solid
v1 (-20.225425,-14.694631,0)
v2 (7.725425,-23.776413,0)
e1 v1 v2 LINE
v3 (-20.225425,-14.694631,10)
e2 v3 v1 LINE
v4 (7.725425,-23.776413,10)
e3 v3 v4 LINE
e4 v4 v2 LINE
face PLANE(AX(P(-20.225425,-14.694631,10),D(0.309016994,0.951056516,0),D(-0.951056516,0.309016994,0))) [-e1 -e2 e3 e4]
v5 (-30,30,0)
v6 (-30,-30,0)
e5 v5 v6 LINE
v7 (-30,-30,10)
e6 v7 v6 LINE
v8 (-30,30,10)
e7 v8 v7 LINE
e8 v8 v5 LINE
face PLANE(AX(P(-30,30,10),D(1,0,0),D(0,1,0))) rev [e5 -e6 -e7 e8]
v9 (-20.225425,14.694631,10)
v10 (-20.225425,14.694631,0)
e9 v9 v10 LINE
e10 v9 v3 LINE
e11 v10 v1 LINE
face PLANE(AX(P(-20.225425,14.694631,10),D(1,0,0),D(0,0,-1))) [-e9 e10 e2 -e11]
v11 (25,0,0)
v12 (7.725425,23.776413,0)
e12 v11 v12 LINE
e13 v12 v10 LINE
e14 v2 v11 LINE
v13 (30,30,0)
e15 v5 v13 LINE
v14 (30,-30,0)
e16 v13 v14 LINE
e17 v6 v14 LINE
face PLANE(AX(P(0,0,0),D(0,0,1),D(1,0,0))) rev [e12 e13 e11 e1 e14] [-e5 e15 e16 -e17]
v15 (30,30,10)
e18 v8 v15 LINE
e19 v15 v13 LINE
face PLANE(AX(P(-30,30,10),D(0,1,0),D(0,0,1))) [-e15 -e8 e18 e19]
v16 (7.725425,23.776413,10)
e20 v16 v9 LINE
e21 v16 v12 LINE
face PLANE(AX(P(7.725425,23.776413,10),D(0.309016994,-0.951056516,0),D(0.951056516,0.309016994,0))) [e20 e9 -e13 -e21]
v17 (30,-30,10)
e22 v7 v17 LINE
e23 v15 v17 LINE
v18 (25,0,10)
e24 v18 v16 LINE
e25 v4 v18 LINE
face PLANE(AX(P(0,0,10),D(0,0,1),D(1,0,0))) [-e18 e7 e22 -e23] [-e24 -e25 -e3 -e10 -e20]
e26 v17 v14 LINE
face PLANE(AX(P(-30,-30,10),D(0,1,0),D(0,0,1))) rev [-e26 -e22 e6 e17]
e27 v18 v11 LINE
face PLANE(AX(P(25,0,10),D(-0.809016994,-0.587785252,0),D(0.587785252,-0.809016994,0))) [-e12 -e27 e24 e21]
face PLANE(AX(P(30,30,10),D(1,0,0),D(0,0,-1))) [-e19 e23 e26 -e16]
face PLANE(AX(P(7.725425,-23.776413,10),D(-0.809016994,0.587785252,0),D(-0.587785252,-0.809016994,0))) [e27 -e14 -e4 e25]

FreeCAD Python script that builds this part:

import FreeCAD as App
import Part
import Sketcher
from FreeCAD import Vector
Q = App.Units.Quantity

doc = App.newDocument("Part")
body = doc.addObject("PartDesign::Body", "Body")

# Sketch on XY plane
sketch1 = body.newObject("Sketcher::SketchObject", "Sketch")
sketch1.AttachmentSupport = (doc.getObject("XY_Plane"), [""])
sketch1.MapMode = "FlatFace"
sketch1.addGeometry(Part.LineSegment(Vector(-30, 30, 0), Vector(-30, -30, 0)), False)
sketch1.addGeometry(Part.LineSegment(Vector(-30, -30, 0), Vector(30, -30, 0)), False)
sketch1.addGeometry(Part.LineSegment(Vector(30, -30, 0), Vector(30, 30, 0)), False)
sketch1.addGeometry(Part.LineSegment(Vector(30, 30, 0), Vector(-30, 30, 0)), False)
sketch1.addGeometry(Part.LineSegment(Vector(25, 0, 0), Vector(7.725425, -23.776413, 0)), False)
sketch1.addGeometry(Part.LineSegment(Vector(7.725425, -23.776413, 0), Vector(-20.225425, -14.694631, 0)), False)
sketch1.addGeometry(Part.LineSegment(Vector(-20.225425, -14.694631, 0), Vector(-20.225425, 14.694631, 0)), False)
sketch1.addGeometry(Part.LineSegment(Vector(-20.225425, 14.694631, 0), Vector(7.725425, 23.776413, 0)), False)
sketch1.addGeometry(Part.LineSegment(Vector(7.725425, 23.776413, 0), Vector(25, 0, 0)), False)
sketch1.addConstraint(Sketcher.Constraint("Coincident", 0, 2, 1, 1))
sketch1.addConstraint(Sketcher.Constraint("Coincident", 1, 2, 2, 1))
sketch1.addConstraint(Sketcher.Constraint("Coincident", 2, 2, 3, 1))
sketch1.addConstraint(Sketcher.Constraint("Coincident", 3, 2, 0, 1))
sketch1.addConstraint(Sketcher.Constraint("Coincident", 4, 2, 5, 1))
sketch1.addConstraint(Sketcher.Constraint("Coincident", 5, 2, 6, 1))
sketch1.addConstraint(Sketcher.Constraint("Coincident", 6, 2, 7, 1))
sketch1.addConstraint(Sketcher.Constraint("Coincident", 7, 2, 8, 1))
sketch1.addConstraint(Sketcher.Constraint("Coincident", 8, 2, 4, 1))
sketch1.addConstraint(Sketcher.Constraint("Vertical", 0))
sketch1.addConstraint(Sketcher.Constraint("Horizontal", 1))
sketch1.addConstraint(Sketcher.Constraint("Vertical", 2))
sketch1.addConstraint(Sketcher.Constraint("Horizontal", 3))
sketch1.addConstraint(Sketcher.Constraint("Vertical", 6))
sketch1.addConstraint(Sketcher.Constraint("Symmetric", 0, 2, 2, 2, -1, 1))
sketch1.addConstraint(Sketcher.Constraint("Symmetric", 4, 2, 7, 2, -1))
sketch1.addConstraint(Sketcher.Constraint("PointOnObject", 8, 2, -1))
sketch1.addConstraint(Sketcher.Constraint("Equal", 3, 0))
sketch1.addConstraint(Sketcher.Constraint("Equal", 4, 5))
sketch1.addConstraint(Sketcher.Constraint("Equal", 5, 7))
sketch1.addConstraint(Sketcher.Constraint("DistanceX", 1, 1, 1, 2, 60.0))
sketch1.addConstraint(Sketcher.Constraint("Angle", 4, Q("-126 deg")))
sketch1.addConstraint(Sketcher.Constraint("Angle", 5, Q("162 deg")))
sketch1.addConstraint(Sketcher.Constraint("DistanceX", -1, 1, 8, 2, 25.0))
sketch1.addConstraint(Sketcher.Constraint("DistanceY", 6, 1, 6, 2, 29.389263))
pad1 = body.newObject("PartDesign::Pad", "Pad")
pad1.Profile = sketch1
pad1.Length = 10

doc.recompute()
